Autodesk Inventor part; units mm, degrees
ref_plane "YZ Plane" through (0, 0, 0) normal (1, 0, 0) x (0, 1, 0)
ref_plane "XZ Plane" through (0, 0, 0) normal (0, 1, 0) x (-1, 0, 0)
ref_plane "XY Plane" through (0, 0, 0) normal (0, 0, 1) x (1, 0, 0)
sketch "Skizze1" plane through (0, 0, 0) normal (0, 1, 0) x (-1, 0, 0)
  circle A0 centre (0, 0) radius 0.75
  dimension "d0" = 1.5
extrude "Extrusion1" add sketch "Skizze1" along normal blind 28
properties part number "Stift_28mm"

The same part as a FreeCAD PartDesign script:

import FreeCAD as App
import Part
import Sketcher
from FreeCAD import Vector
Q = App.Units.Quantity

doc = App.newDocument("Part")
params = doc.addObject("Spreadsheet::Sheet", "Params")
for row, (alias, value) in enumerate([
    ("sketch1_diameter", "1.5 mm"),
    ("pad1_length", "28 mm"),
], start=1):
    params.set(f"A{row}", alias)
    params.set(f"B{row}", "=" + value)
    params.setAlias(f"B{row}", alias)

body = doc.addObject("PartDesign::Body", "Body")

# Sketch on XZ plane
sketch1 = doc.addObject("Sketcher::SketchObject", "Sketch")
body.addObject(sketch1)
sketch1.AttachmentSupport = (doc.XZ_Plane, [""])
sketch1.MapMode = "FlatFace"
sketch1.addGeometry(Part.Circle(Vector(0, 0, 0), Vector(0, 0, 1), 0.75), False)
sketch1.addConstraint([
    Sketcher.Constraint("Coincident", 0, 3, -1, 1),
    Sketcher.Constraint("Diameter", 0, Q("1.5 mm")),
])
sketch1.setExpression("Constraints[1]", "Params.sketch1_diameter")
pad1 = doc.addObject("PartDesign::Pad", "Pad")
body.addObject(pad1)
pad1.Profile = sketch1
pad1.setExpression("Length", "Params.pad1_length")
pad1.Reversed = True

doc.recompute()
